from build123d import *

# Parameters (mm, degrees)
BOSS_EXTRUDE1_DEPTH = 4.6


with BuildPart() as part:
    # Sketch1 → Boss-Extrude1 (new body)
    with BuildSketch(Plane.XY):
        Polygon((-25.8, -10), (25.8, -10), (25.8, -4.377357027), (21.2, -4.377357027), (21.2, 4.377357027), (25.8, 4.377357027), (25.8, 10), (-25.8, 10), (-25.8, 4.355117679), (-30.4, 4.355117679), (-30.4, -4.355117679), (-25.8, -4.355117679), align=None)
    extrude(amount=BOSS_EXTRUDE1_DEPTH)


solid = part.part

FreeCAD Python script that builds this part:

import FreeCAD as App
import Part
import Sketcher
from FreeCAD import Vector


def add_polygon(sketch, points):
    """Adds a closed chain of lines whose ends are joined by coincident constraints."""
    first, n = sketch.GeometryCount, len(points)
    for a, b in zip(points, points[1:] + points[:1]):
        sketch.addGeometry(Part.LineSegment(App.Vector(*a, 0), App.Vector(*b, 0)), False)
    for i in range(n):
        sketch.addConstraint(Sketcher.Constraint("Coincident", first + i, 2, first + (i + 1) % n, 1))

doc = App.newDocument("Part")
body = doc.addObject("PartDesign::Body", "Body")

# Sketch on XY plane
sketch1 = body.newObject("Sketcher::SketchObject", "Sketch")
sketch1.AttachmentSupport = (doc.getObject("XY_Plane"), [""])
sketch1.MapMode = "FlatFace"
add_polygon(sketch1, [(-25.8, -10), (25.8, -10), (25.8, -4.377357), (21.2, -4.377357), (21.2, 4.377357), (25.8, 4.377357), (25.8, 10), (-25.8, 10), (-25.8, 4.355118), (-30.4, 4.355118), (-30.4, -4.355118), (-25.8, -4.355118)])  # lines 0-11
sketch1.addConstraint(Sketcher.Constraint("Horizontal", 0))
sketch1.addConstraint(Sketcher.Constraint("Vertical", 1))
sketch1.addConstraint(Sketcher.Constraint("Horizontal", 2))
sketch1.addConstraint(Sketcher.Constraint("Vertical", 3))
sketch1.addConstraint(Sketcher.Constraint("Horizontal", 4))
sketch1.addConstraint(Sketcher.Constraint("Vertical", 5))
sketch1.addConstraint(Sketcher.Constraint("Horizontal", 6))
sketch1.addConstraint(Sketcher.Constraint("Vertical", 7))
sketch1.addConstraint(Sketcher.Constraint("Horizontal", 8))
sketch1.addConstraint(Sketcher.Constraint("Vertical", 9))
sketch1.addConstraint(Sketcher.Constraint("Horizontal", 10))
sketch1.addConstraint(Sketcher.Constraint("Vertical", 11))
sketch1.addConstraint(Sketcher.Constraint("Symmetric", 0, 2, 6, 2, -1, 1))
sketch1.addConstraint(Sketcher.Constraint("Symmetric", 1, 2, 4, 2, -1))
sketch1.addConstraint(Sketcher.Constraint("Symmetric", 7, 2, 10, 2, -1))
sketch1.addConstraint(Sketcher.Constraint("Equal", 4, 8))
sketch1.addConstraint(Sketcher.Constraint("DistanceX", 0, 1, 0, 2, 51.6))
sketch1.addConstraint(Sketcher.Constraint("DistanceX", 2, 2, 2, 1, 4.6))
sketch1.addConstraint(Sketcher.Constraint("DistanceY", 0, 2, -1, 1, 10.0))
sketch1.addConstraint(Sketcher.Constraint("DistanceY", 1, 1, 1, 2, 5.622643))
sketch1.addConstraint(Sketcher.Constraint("DistanceY", 7, 2, 7, 1, 5.644882))
pad1 = body.newObject("PartDesign::Pad", "Pad")
pad1.Profile = sketch1
pad1.Length = 4.6

doc.recompute()
